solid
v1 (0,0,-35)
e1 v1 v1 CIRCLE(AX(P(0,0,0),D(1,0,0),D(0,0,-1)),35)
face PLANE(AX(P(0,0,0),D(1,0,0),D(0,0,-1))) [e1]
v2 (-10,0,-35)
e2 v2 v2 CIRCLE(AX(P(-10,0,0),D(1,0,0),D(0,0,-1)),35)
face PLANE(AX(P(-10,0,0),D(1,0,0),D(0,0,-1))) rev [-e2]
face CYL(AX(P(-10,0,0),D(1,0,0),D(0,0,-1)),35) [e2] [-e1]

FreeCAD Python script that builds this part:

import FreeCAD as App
import Part
import Sketcher
from FreeCAD import Vector
Q = App.Units.Quantity

doc = App.newDocument("Part")
body = doc.addObject("PartDesign::Body", "Body")

# Sketch on YZ plane
sketch1 = body.newObject("Sketcher::SketchObject", "Sketch")
sketch1.AttachmentSupport = (doc.getObject("YZ_Plane"), [""])
sketch1.MapMode = "FlatFace"
sketch1.addGeometry(Part.Circle(Vector(0, 0, 0), Vector(0, 0, 1), 35), False)
sketch1.addConstraint([
    Sketcher.Constraint("Coincident", 0, 3, -1, 1),
    Sketcher.Constraint("Diameter", 0, Q("70 mm")),
])
pad1 = body.newObject("PartDesign::Pad", "Pad")
pad1.Profile = sketch1
pad1.Length = 10
pad1.Reversed = True

doc.recompute()
